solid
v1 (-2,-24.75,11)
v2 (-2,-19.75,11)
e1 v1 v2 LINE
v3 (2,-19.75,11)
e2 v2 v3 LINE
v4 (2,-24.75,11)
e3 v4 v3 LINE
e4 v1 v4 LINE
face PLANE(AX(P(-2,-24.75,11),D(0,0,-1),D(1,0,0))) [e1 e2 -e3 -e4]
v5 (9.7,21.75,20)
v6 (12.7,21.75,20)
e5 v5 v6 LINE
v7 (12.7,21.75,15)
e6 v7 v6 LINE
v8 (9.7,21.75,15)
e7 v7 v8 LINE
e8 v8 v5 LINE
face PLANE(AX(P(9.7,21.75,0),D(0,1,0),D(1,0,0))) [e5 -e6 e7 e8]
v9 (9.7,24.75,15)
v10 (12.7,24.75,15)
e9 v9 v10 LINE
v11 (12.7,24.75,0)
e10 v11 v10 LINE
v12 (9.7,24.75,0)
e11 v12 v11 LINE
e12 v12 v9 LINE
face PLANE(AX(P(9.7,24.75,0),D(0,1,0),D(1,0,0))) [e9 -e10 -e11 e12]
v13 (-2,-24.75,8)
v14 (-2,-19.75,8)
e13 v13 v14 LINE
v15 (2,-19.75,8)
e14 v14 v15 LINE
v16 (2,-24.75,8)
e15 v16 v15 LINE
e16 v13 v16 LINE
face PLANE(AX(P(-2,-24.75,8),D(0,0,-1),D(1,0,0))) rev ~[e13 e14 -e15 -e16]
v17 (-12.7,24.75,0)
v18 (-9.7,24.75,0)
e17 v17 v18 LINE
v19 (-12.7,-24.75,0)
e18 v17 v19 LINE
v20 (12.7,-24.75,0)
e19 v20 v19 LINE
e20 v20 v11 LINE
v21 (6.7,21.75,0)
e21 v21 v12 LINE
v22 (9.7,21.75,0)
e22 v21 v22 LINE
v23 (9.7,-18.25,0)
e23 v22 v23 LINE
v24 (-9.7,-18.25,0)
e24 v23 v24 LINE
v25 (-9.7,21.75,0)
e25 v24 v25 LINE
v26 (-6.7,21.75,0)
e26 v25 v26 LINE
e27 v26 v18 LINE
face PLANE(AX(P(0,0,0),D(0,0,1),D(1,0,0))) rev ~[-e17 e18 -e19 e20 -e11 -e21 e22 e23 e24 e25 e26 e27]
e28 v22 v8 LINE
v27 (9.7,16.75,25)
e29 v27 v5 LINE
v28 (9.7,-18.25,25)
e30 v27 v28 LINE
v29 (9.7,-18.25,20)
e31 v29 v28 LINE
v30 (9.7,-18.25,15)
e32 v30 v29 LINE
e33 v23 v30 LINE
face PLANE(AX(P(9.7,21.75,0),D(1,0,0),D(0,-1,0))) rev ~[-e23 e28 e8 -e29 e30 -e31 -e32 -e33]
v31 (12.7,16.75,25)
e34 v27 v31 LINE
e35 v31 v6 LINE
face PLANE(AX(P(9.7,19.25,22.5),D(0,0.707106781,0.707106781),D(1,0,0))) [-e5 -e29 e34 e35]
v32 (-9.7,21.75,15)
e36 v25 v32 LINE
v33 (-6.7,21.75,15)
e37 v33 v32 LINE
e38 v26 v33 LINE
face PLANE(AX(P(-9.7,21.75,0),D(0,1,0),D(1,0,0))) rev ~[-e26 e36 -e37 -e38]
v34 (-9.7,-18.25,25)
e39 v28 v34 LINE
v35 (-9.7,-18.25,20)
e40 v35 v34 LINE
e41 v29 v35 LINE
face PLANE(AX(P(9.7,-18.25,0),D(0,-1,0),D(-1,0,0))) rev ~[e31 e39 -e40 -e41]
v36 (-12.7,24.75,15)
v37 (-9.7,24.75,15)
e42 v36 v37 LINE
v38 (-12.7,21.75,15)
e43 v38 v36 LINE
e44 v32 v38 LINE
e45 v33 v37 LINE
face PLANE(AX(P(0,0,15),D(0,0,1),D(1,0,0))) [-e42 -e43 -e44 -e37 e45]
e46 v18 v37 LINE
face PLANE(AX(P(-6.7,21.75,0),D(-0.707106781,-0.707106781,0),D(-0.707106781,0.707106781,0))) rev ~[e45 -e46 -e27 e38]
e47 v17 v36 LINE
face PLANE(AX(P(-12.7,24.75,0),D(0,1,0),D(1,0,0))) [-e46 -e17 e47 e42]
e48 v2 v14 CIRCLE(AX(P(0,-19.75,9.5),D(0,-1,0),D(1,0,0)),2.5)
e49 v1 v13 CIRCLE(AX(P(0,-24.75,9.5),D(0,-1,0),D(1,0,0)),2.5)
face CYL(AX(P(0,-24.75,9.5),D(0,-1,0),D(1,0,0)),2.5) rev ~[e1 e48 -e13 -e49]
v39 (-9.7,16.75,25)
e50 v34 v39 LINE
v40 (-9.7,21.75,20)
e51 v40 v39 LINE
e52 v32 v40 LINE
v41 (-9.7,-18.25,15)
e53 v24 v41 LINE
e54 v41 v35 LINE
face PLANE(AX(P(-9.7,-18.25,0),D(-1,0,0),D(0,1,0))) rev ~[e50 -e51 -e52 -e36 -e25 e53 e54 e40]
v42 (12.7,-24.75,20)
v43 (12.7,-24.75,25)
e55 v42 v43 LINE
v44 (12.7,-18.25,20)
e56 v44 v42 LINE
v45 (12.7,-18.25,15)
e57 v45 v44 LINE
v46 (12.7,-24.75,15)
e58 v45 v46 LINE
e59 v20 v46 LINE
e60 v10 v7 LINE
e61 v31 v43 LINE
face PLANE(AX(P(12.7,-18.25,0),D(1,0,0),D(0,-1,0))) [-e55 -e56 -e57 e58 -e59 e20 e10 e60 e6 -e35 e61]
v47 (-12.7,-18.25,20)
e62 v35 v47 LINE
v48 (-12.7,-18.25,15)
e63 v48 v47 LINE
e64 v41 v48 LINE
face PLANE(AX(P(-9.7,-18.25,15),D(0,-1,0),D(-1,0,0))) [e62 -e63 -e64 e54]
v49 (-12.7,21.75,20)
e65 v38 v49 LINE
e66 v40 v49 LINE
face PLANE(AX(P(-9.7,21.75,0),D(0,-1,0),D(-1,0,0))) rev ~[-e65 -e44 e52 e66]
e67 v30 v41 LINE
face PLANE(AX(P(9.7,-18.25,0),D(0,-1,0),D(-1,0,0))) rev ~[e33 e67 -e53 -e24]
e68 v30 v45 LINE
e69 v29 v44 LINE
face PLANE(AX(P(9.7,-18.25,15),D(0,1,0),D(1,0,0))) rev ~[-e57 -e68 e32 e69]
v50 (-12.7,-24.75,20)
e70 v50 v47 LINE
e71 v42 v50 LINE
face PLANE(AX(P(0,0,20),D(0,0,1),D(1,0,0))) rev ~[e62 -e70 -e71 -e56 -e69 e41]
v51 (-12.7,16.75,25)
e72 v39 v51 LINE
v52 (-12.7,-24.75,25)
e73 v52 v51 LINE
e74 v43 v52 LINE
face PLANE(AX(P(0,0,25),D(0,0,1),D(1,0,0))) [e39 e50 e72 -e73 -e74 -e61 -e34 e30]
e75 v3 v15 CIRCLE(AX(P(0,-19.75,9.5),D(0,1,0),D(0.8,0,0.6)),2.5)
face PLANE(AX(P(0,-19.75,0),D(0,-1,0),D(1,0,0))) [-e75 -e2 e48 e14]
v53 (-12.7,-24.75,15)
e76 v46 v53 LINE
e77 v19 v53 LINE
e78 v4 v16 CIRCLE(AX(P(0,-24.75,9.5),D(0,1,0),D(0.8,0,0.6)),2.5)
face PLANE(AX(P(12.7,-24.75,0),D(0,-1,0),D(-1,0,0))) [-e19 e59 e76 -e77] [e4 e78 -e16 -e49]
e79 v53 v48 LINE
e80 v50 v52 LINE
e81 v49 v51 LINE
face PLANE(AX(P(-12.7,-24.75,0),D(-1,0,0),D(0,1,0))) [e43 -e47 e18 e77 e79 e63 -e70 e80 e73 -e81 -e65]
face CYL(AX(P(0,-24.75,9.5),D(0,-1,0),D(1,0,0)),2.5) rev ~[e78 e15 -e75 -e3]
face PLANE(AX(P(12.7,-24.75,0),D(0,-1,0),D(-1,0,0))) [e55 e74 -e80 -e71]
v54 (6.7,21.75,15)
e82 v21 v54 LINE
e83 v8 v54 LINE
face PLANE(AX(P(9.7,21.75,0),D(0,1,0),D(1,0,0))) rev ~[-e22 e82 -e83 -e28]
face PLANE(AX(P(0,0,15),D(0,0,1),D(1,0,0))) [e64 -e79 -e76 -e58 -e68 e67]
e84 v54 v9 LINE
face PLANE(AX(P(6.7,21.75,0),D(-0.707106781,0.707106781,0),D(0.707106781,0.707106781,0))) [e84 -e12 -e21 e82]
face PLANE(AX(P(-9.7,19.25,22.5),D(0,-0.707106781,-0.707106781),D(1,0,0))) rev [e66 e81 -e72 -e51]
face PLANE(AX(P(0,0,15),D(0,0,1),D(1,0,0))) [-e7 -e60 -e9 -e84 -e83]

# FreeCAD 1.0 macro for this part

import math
import FreeCAD as App
import Part
import Sketcher
Q = App.Units.Quantity


def edges_at(feature, points):
    """Names of the edges that pass closest to the given points."""
    edges = feature.Shape.Edges
    near = lambda p: min(range(len(edges)), key=lambda i: edges[i].distToShape(Part.Vertex(*p))[0])
    return sorted({f"Edge{near(p) + 1}" for p in points})


def add_polygon(sketch, points):
    """Adds a closed chain of lines whose ends are joined by coincident constraints."""
    first, n = sketch.GeometryCount, len(points)
    for a, b in zip(points, points[1:] + points[:1]):
        sketch.addGeometry(Part.LineSegment(App.Vector(*a, 0), App.Vector(*b, 0)), False)
    for i in range(n):
        sketch.addConstraint(Sketcher.Constraint("Coincident", first + i, 2, first + (i + 1) % n, 1))

doc = App.newDocument("Part")
params = doc.addObject("Spreadsheet::Sheet", "Params")
for row, (alias, value) in enumerate([
    ("sketch1_width", "3 mm"),
    ("sketch1_width2", "19.4 mm"),
    ("sketch1_height", "40 mm"),
    ("pad1_length", "25 mm"),
    ("sketch2_width", "3 mm"),
    ("pad2_length", "15 mm"),
    ("sketch3_height", "6.5 mm"),
    ("sketch3_width", "25.4 mm"),
    ("pocket1_length", "5 mm"),
    ("chamfer_size", "5 mm"),
    ("sketch4_radius", "2.5 mm"),
    ("pocket2_length", "5 mm"),
], start=1):
    params.set(f"A{row}", alias)
    params.set(f"B{row}", "=" + value)
    params.setAlias(f"B{row}", alias)

body = doc.addObject("PartDesign::Body", "Body")

sketch1 = body.newObject("Sketcher::SketchObject", "Sketch")
sketch1.AttachmentSupport = (doc.getObject("XY_Plane"), [""])
sketch1.MapMode = "FlatFace"
add_polygon(sketch1, [(-12.7, -24.8), (12.7, -24.8), (12.7, 21.8), (9.7, 21.8), (9.7, -18.2), (-9.7, -18.2), (-9.7, 21.8), (-12.7, 21.8)])
sketch1.addConstraint([
    Sketcher.Constraint("Horizontal", 0),
    Sketcher.Constraint("Vertical", 1),
    Sketcher.Constraint("Horizontal", 2),
    Sketcher.Constraint("Vertical", 3),
    Sketcher.Constraint("Horizontal", 4),
    Sketcher.Constraint("Vertical", 5),
    Sketcher.Constraint("Horizontal", 6),
    Sketcher.Constraint("Vertical", 7),
    Sketcher.Constraint("Symmetric", 2, 2, 5, 2, -2),
    Sketcher.Constraint("Equal", 2, 6),
    Sketcher.Constraint("DistanceX", 2, 2, 2, 1, Q("3 mm")),
    Sketcher.Constraint("DistanceX", 4, 2, 4, 1, Q("19.4 mm")),
    Sketcher.Constraint("DistanceY", 0, 2, 3, 2, Q("6.5 mm")),
    Sketcher.Constraint("DistanceY", 3, 2, 3, 1, Q("40 mm")),
    Sketcher.Constraint("DistanceY", 0, 2, -1, 1, Q("24.75 mm")),
])
sketch1.setExpression("Constraints[18]", "Params.sketch1_width")
sketch1.setExpression("Constraints[19]", "Params.sketch1_width2")
sketch1.setExpression("Constraints[21]", "Params.sketch1_height")
pad1 = body.newObject("PartDesign::Pad", "Pad")
pad1.Profile = sketch1
pad1.setExpression("Length", "Params.pad1_length")

sketch2 = body.newObject("Sketcher::SketchObject", "Sketch001")
sketch2.AttachmentSupport = (doc.getObject("XY_Plane"), [""])
sketch2.MapMode = "FlatFace"
add_polygon(sketch2, [(6.7, 21.8), (12.7, 21.8), (12.7, 24.8), (9.7, 24.8)])
add_polygon(sketch2, [(-12.7, 24.8), (-12.7, 21.8), (-6.7, 21.8), (-9.7, 24.8)])
sketch2.addConstraint([
    Sketcher.Constraint("Horizontal", 0),
    Sketcher.Constraint("Vertical", 1),
    Sketcher.Constraint("Horizontal", 2),
    Sketcher.Constraint("Vertical", 4),
    Sketcher.Constraint("Horizontal", 5),
    Sketcher.Constraint("Horizontal", 7),
    Sketcher.Constraint("Symmetric", 0, 2, 4, 2, -2),
    Sketcher.Constraint("Symmetric", 2, 2, 6, 2, -2),
    Sketcher.Constraint("Perpendicular", 3, 6),
    Sketcher.Constraint("Equal", 0, 5),
    Sketcher.Constraint("Equal", 7, 1),
    Sketcher.Constraint("DistanceX", 2, 2, 2, 1, Q("3 mm")),
    Sketcher.Constraint("DistanceX", 4, 2, 3, 2, Q("19.4 mm")),
    Sketcher.Constraint("DistanceY", -1, 1, 0, 2, Q("21.75 mm")),
])
sketch2.setExpression("Constraints[19]", "Params.sketch2_width")
pad2 = body.newObject("PartDesign::Pad", "Pad001")
pad2.Profile = sketch2
pad2.setExpression("Length", "Params.pad2_length")

sketch3 = body.newObject("Sketcher::SketchObject", "Sketch002")
sketch3.AttachmentSupport = (doc.getObject("XY_Plane"), [""])
sketch3.MapMode = "FlatFace"
sketch3.AttachmentOffset = App.Placement(App.Vector(0, 0, 15), App.Rotation())
add_polygon(sketch3, [(-13, -25), (13, -25), (13, -18), (-13, -18)])
sketch3.addConstraint([
    Sketcher.Constraint("Horizontal", 0),
    Sketcher.Constraint("Vertical", 1),
    Sketcher.Constraint("Horizontal", 2),
    Sketcher.Constraint("Vertical", 3),
    Sketcher.Constraint("DistanceY", 1, 1, 1, 2, Q("6.5 mm")),
    Sketcher.Constraint("DistanceX", 0, 1, 0, 2, Q("25.4 mm")),
    Sketcher.Constraint("DistanceX", -1, 1, 0, 2, Q("12.7 mm")),
    Sketcher.Constraint("DistanceY", 0, 2, -1, 1, Q("24.75 mm")),
])
sketch3.setExpression("Constraints[8]", "Params.sketch3_height")
sketch3.setExpression("Constraints[9]", "Params.sketch3_width")
pocket1 = body.newObject("PartDesign::Pocket", "Pocket")
pocket1.Profile = sketch3
pocket1.setExpression("Length", "Params.pocket1_length")
pocket1.Reversed = True
doc.recompute()

chamfer = body.newObject("PartDesign::Chamfer", "Chamfer")
chamfer.Base = (pocket1, edges_at(pocket1, [(11.2, 21.75, 25), (-11.2, 21.75, 25)]))
chamfer.setExpression("Size", "Params.chamfer_size")

sketch4 = body.newObject("Sketcher::SketchObject", "Sketch003")
sketch4.AttachmentSupport = (doc.getObject("XZ_Plane"), [""])
sketch4.MapMode = "FlatFace"
sketch4.AttachmentOffset = App.Placement(App.Vector(0, 0, 24.75), App.Rotation())
sketch4.addGeometry([
    Part.ArcOfCircle(Part.Circle(App.Vector(0, 9.5, 0), App.Vector(0, 0, 1), 2.5), math.radians(-37), math.radians(37)),
    Part.LineSegment(App.Vector(2, 11, 0), App.Vector(-2, 11, 0)),
    Part.ArcOfCircle(Part.Circle(App.Vector(0, 9.5, 0), App.Vector(0, 0, 1), 2.5), math.radians(143), math.radians(217)),
    Part.LineSegment(App.Vector(-2, 8, 0), App.Vector(2, 8, 0)),
], False)
sketch4.addConstraint([
    Sketcher.Constraint("Coincident", 0, 2, 1, 1),
    Sketcher.Constraint("Coincident", 1, 2, 2, 1),
    Sketcher.Constraint("Coincident", 2, 2, 3, 1),
    Sketcher.Constraint("Coincident", 3, 2, 0, 1),
    Sketcher.Constraint("Horizontal", 1),
    Sketcher.Constraint("Horizontal", 3),
    Sketcher.Constraint("Coincident", 2, 3, 0, 3),
    Sketcher.Constraint("Equal", 0, 2),
    Sketcher.Constraint("PointOnObject", 0, 3, -2),
    Sketcher.Constraint("Vertical", 1, 2, 2, 2),
    Sketcher.Constraint("Radius", 0, Q("2.5 mm")),
    Sketcher.Constraint("DistanceY", 2, 2, 1, 2, Q("3 mm")),
    Sketcher.Constraint("DistanceY", -1, 1, 0, 2, Q("11 mm")),
])
sketch4.setExpression("Constraints[10]", "Params.sketch4_radius")
pocket2 = body.newObject("PartDesign::Pocket", "Pocket001")
pocket2.Profile = sketch4
pocket2.setExpression("Length", "Params.pocket2_length")

doc.recompute()
